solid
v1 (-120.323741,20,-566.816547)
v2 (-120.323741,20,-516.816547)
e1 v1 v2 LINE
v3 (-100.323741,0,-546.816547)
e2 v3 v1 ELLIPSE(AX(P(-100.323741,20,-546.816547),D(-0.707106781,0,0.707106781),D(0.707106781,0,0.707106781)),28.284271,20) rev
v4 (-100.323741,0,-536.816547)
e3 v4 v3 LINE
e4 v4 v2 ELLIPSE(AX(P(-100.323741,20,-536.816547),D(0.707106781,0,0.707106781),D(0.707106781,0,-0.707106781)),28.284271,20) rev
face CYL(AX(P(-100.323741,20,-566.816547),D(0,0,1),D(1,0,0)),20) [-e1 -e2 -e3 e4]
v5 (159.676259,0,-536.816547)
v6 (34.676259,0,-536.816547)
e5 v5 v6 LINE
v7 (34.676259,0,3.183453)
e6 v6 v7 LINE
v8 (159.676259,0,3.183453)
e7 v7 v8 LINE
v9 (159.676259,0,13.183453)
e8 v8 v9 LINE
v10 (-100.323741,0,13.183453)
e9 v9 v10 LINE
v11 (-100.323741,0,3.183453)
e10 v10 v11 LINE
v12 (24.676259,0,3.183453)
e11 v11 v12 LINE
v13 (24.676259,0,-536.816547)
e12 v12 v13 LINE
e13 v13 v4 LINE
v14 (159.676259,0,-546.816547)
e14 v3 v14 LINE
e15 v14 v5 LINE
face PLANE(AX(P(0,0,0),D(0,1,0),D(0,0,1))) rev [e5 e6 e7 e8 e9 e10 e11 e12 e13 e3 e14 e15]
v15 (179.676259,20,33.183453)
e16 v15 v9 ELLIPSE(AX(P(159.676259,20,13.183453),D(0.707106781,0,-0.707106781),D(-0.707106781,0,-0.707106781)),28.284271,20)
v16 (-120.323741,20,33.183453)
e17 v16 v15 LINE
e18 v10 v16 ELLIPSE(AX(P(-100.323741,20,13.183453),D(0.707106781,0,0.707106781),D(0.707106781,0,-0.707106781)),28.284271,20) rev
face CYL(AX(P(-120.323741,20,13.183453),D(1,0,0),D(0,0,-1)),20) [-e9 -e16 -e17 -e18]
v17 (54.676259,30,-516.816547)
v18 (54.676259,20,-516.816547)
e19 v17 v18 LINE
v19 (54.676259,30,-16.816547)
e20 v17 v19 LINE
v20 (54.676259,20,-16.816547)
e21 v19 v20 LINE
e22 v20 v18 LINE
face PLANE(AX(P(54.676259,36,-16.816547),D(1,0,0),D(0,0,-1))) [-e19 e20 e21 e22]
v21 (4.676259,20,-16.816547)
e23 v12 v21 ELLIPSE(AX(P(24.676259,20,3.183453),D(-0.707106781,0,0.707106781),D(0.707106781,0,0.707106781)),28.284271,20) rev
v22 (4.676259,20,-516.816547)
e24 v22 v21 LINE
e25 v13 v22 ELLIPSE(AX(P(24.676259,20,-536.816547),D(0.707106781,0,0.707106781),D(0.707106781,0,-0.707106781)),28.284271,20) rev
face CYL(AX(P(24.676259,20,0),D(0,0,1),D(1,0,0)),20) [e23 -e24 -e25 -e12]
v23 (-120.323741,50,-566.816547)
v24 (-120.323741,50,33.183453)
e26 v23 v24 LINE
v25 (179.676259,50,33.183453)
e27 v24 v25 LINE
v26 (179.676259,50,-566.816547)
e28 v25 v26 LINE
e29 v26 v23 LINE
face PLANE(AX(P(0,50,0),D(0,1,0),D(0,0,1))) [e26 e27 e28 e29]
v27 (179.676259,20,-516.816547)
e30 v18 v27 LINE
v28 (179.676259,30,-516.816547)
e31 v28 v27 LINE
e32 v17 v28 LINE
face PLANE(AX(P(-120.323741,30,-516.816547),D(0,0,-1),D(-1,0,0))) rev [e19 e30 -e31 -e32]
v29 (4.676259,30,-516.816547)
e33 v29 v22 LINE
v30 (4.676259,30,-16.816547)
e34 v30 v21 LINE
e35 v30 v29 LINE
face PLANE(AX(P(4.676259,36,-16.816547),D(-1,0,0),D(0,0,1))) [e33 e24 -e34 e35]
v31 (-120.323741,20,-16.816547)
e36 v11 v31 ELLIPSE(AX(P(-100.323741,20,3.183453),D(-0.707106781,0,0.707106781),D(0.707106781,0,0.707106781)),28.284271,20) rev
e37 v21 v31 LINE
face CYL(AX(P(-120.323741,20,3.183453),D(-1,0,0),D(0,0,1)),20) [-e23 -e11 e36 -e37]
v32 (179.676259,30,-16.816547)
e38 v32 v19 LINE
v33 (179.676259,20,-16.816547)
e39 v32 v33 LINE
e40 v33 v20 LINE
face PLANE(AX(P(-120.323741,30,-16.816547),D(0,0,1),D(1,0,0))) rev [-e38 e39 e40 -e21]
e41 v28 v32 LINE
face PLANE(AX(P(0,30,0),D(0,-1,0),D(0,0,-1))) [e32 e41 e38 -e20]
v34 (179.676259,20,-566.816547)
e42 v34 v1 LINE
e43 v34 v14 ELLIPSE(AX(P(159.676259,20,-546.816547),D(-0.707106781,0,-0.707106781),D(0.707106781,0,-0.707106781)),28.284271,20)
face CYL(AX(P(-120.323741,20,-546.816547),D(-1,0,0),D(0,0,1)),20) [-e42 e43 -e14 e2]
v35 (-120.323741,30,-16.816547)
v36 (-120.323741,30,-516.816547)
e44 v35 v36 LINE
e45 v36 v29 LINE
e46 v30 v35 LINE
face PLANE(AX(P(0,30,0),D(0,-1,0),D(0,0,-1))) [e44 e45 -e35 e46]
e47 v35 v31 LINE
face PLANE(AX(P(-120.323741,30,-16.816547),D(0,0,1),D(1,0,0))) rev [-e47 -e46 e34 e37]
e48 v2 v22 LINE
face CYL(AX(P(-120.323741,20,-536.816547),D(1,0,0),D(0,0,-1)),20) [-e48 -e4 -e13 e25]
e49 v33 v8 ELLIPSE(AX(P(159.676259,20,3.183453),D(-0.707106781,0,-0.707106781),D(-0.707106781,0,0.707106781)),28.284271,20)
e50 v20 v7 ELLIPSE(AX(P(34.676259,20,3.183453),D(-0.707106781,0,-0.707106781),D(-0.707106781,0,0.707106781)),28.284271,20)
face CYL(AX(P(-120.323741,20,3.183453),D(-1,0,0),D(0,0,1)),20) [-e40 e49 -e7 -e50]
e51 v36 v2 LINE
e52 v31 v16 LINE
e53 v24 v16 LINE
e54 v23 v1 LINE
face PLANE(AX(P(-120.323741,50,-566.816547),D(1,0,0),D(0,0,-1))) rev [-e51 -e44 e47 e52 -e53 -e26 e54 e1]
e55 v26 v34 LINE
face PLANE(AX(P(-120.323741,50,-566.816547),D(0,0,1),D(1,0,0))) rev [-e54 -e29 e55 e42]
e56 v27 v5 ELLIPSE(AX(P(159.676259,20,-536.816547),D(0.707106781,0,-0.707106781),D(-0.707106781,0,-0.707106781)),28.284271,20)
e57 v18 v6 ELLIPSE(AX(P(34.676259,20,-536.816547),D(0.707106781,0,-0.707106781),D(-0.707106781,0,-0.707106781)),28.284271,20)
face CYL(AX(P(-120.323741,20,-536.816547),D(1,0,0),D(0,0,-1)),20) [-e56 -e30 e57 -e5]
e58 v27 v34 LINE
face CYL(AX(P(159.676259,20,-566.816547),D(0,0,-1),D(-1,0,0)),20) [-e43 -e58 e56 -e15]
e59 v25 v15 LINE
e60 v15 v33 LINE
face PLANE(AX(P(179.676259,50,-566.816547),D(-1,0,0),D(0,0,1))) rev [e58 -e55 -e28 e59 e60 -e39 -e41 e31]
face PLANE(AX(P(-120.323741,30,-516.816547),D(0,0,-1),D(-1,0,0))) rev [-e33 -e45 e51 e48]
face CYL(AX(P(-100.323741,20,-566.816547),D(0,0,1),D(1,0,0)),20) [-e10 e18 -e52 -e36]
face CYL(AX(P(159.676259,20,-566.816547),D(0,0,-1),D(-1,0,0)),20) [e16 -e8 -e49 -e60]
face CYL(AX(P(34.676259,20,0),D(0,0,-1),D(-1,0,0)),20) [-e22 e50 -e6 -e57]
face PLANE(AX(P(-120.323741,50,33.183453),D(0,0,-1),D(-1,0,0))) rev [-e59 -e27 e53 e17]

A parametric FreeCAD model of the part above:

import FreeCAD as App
import Part
import Sketcher


def edges_at(feature, points):
    """Names of the edges that pass closest to the given points."""
    edges = feature.Shape.Edges
    near = lambda p: min(range(len(edges)), key=lambda i: edges[i].distToShape(Part.Vertex(*p))[0])
    return sorted({f"Edge{near(p) + 1}" for p in points})

doc = App.newDocument("Part")
params = doc.addObject("Spreadsheet::Sheet", "Params")
for row, (alias, value) in enumerate([
    ("sketch1_width", "300 mm"),
    ("sketch1_height", "600 mm"),
    ("pad1_length", "50 mm"),
    ("sketch2_width", "300 mm"),
    ("sketch2_height", "500 mm"),
    ("pocket1_length", "30 mm"),
    ("sketch3_width", "50 mm"),
    ("sketch3_height", "500 mm"),
    ("pad2_length", "36 mm"),
    ("fillet_radius", "20 mm"),
], start=1):
    params.set(f"A{row}", alias)
    params.set(f"B{row}", "=" + value)
    params.setAlias(f"B{row}", alias)

body = doc.addObject("PartDesign::Body", "Body")

sketch1 = body.newObject("Sketcher::SketchObject", "Sketch")
sketch1.AttachmentSupport = (doc.getObject("XZ_Plane"), [""])
sketch1.MapMode = "FlatFace"
sketch1.addGeometry(Part.LineSegment(App.Vector(-120, -567, 0), App.Vector(-120, 33, 0)), False)
sketch1.addGeometry(Part.LineSegment(App.Vector(-120, 33, 0), App.Vector(180, 33, 0)), False)
sketch1.addGeometry(Part.LineSegment(App.Vector(180, 33, 0), App.Vector(180, -567, 0)), False)
sketch1.addGeometry(Part.LineSegment(App.Vector(180, -567, 0), App.Vector(-120, -567, 0)), False)
sketch1.addConstraint(Sketcher.Constraint("Coincident", 0, 2, 1, 1))
sketch1.addConstraint(Sketcher.Constraint("Coincident", 1, 2, 2, 1))
sketch1.addConstraint(Sketcher.Constraint("Coincident", 2, 2, 3, 1))
sketch1.addConstraint(Sketcher.Constraint("Coincident", 3, 2, 0, 1))
sketch1.addConstraint(Sketcher.Constraint("Vertical", 0))
sketch1.addConstraint(Sketcher.Constraint("Horizontal", 1))
sketch1.addConstraint(Sketcher.Constraint("Vertical", 2))
sketch1.addConstraint(Sketcher.Constraint("Horizontal", 3))
sketch1.addConstraint(Sketcher.Constraint("DistanceX", 1, 1, 1, 2, 300.0))
sketch1.addConstraint(Sketcher.Constraint("DistanceY", 0, 1, 0, 2, 600.0))
sketch1.addConstraint(Sketcher.Constraint("DistanceX", 0, 2, -1, 1, 120.323741))
sketch1.addConstraint(Sketcher.Constraint("DistanceY", -1, 1, 0, 2, 33.183453))
sketch1.setExpression("Constraints[8]", "Params.sketch1_width")
sketch1.setExpression("Constraints[9]", "Params.sketch1_height")
pad1 = body.newObject("PartDesign::Pad", "Pad")
pad1.Profile = sketch1
pad1.setExpression("Length", "Params.pad1_length")
pad1.Reversed = True

sketch2 = body.newObject("Sketcher::SketchObject", "Sketch001")
sketch2.AttachmentSupport = (doc.getObject("XZ_Plane"), [""])
sketch2.MapMode = "FlatFace"
sketch2.addGeometry(Part.LineSegment(App.Vector(180, -517, 0), App.Vector(180, -17, 0)), False)
sketch2.addGeometry(Part.LineSegment(App.Vector(180, -17, 0), App.Vector(-120, -17, 0)), False)
sketch2.addGeometry(Part.LineSegment(App.Vector(-120, -17, 0), App.Vector(-120, -517, 0)), False)
sketch2.addGeometry(Part.LineSegment(App.Vector(-120, -517, 0), App.Vector(180, -517, 0)), False)
sketch2.addConstraint(Sketcher.Constraint("Coincident", 0, 2, 1, 1))
sketch2.addConstraint(Sketcher.Constraint("Coincident", 1, 2, 2, 1))
sketch2.addConstraint(Sketcher.Constraint("Coincident", 2, 2, 3, 1))
sketch2.addConstraint(Sketcher.Constraint("Coincident", 3, 2, 0, 1))
sketch2.addConstraint(Sketcher.Constraint("Vertical", 0))
sketch2.addConstraint(Sketcher.Constraint("Horizontal", 1))
sketch2.addConstraint(Sketcher.Constraint("Vertical", 2))
sketch2.addConstraint(Sketcher.Constraint("Horizontal", 3))
sketch2.addConstraint(Sketcher.Constraint("DistanceX", 1, 2, 1, 1, 300.0))
sketch2.addConstraint(Sketcher.Constraint("DistanceY", 0, 1, 0, 2, 500.0))
sketch2.addConstraint(Sketcher.Constraint("DistanceX", -1, 1, 0, 2, 179.676259))
sketch2.addConstraint(Sketcher.Constraint("DistanceY", 0, 2, -1, 1, 16.816547))
sketch2.setExpression("Constraints[8]", "Params.sketch2_width")
sketch2.setExpression("Constraints[9]", "Params.sketch2_height")
pocket1 = body.newObject("PartDesign::Pocket", "Pocket")
pocket1.Profile = sketch2
pocket1.setExpression("Length", "Params.pocket1_length")

sketch3 = body.newObject("Sketcher::SketchObject", "Sketch002")
sketch3.AttachmentSupport = (doc.getObject("XZ_Plane"), [""])
sketch3.MapMode = "FlatFace"
sketch3.addGeometry(Part.LineSegment(App.Vector(55, -517, 0), App.Vector(55, -17, 0)), False)
sketch3.addGeometry(Part.LineSegment(App.Vector(55, -17, 0), App.Vector(5, -17, 0)), False)
sketch3.addGeometry(Part.LineSegment(App.Vector(5, -17, 0), App.Vector(5, -517, 0)), False)
sketch3.addGeometry(Part.LineSegment(App.Vector(5, -517, 0), App.Vector(55, -517, 0)), False)
sketch3.addConstraint(Sketcher.Constraint("Coincident", 0, 2, 1, 1))
sketch3.addConstraint(Sketcher.Constraint("Coincident", 1, 2, 2, 1))
sketch3.addConstraint(Sketcher.Constraint("Coincident", 2, 2, 3, 1))
sketch3.addConstraint(Sketcher.Constraint("Coincident", 3, 2, 0, 1))
sketch3.addConstraint(Sketcher.Constraint("Vertical", 0))
sketch3.addConstraint(Sketcher.Constraint("Horizontal", 1))
sketch3.addConstraint(Sketcher.Constraint("Vertical", 2))
sketch3.addConstraint(Sketcher.Constraint("Horizontal", 3))
sketch3.addConstraint(Sketcher.Constraint("DistanceX", 1, 2, 1, 1, 50.0))
sketch3.addConstraint(Sketcher.Constraint("DistanceY", 0, 1, 0, 2, 500.0))
sketch3.addConstraint(Sketcher.Constraint("DistanceX", -1, 1, 0, 2, 54.676259))
sketch3.addConstraint(Sketcher.Constraint("DistanceY", 0, 2, -1, 1, 16.816547))
sketch3.setExpression("Constraints[8]", "Params.sketch3_width")
sketch3.setExpression("Constraints[9]", "Params.sketch3_height")
pad2 = body.newObject("PartDesign::Pad", "Pad001")
pad2.Profile = sketch3
pad2.setExpression("Length", "Params.pad2_length")
pad2.Reversed = True
doc.recompute()

fillet = body.newObject("PartDesign::Fillet", "Fillet")
fillet.Base = (pad2, edges_at(pad2, [
    (-120.324, 0, 8.183),
    (179.676, 0, -541.817),
    (-57.824, 0, -516.817),
    (117.176, 0, -16.817),
    (117.176, 0, -516.817),
    (-57.824, 0, -16.817),
    (4.676, 0, -266.817),
    (54.676, 0, -266.817),
    (29.676, 0, -566.817),
    (179.676, 0, 8.183),
    (29.676, 0, 33.183),
    (-120.324, 0, -541.817),
]))
fillet.setExpression("Radius", "Params.fillet_radius")

doc.recompute()
